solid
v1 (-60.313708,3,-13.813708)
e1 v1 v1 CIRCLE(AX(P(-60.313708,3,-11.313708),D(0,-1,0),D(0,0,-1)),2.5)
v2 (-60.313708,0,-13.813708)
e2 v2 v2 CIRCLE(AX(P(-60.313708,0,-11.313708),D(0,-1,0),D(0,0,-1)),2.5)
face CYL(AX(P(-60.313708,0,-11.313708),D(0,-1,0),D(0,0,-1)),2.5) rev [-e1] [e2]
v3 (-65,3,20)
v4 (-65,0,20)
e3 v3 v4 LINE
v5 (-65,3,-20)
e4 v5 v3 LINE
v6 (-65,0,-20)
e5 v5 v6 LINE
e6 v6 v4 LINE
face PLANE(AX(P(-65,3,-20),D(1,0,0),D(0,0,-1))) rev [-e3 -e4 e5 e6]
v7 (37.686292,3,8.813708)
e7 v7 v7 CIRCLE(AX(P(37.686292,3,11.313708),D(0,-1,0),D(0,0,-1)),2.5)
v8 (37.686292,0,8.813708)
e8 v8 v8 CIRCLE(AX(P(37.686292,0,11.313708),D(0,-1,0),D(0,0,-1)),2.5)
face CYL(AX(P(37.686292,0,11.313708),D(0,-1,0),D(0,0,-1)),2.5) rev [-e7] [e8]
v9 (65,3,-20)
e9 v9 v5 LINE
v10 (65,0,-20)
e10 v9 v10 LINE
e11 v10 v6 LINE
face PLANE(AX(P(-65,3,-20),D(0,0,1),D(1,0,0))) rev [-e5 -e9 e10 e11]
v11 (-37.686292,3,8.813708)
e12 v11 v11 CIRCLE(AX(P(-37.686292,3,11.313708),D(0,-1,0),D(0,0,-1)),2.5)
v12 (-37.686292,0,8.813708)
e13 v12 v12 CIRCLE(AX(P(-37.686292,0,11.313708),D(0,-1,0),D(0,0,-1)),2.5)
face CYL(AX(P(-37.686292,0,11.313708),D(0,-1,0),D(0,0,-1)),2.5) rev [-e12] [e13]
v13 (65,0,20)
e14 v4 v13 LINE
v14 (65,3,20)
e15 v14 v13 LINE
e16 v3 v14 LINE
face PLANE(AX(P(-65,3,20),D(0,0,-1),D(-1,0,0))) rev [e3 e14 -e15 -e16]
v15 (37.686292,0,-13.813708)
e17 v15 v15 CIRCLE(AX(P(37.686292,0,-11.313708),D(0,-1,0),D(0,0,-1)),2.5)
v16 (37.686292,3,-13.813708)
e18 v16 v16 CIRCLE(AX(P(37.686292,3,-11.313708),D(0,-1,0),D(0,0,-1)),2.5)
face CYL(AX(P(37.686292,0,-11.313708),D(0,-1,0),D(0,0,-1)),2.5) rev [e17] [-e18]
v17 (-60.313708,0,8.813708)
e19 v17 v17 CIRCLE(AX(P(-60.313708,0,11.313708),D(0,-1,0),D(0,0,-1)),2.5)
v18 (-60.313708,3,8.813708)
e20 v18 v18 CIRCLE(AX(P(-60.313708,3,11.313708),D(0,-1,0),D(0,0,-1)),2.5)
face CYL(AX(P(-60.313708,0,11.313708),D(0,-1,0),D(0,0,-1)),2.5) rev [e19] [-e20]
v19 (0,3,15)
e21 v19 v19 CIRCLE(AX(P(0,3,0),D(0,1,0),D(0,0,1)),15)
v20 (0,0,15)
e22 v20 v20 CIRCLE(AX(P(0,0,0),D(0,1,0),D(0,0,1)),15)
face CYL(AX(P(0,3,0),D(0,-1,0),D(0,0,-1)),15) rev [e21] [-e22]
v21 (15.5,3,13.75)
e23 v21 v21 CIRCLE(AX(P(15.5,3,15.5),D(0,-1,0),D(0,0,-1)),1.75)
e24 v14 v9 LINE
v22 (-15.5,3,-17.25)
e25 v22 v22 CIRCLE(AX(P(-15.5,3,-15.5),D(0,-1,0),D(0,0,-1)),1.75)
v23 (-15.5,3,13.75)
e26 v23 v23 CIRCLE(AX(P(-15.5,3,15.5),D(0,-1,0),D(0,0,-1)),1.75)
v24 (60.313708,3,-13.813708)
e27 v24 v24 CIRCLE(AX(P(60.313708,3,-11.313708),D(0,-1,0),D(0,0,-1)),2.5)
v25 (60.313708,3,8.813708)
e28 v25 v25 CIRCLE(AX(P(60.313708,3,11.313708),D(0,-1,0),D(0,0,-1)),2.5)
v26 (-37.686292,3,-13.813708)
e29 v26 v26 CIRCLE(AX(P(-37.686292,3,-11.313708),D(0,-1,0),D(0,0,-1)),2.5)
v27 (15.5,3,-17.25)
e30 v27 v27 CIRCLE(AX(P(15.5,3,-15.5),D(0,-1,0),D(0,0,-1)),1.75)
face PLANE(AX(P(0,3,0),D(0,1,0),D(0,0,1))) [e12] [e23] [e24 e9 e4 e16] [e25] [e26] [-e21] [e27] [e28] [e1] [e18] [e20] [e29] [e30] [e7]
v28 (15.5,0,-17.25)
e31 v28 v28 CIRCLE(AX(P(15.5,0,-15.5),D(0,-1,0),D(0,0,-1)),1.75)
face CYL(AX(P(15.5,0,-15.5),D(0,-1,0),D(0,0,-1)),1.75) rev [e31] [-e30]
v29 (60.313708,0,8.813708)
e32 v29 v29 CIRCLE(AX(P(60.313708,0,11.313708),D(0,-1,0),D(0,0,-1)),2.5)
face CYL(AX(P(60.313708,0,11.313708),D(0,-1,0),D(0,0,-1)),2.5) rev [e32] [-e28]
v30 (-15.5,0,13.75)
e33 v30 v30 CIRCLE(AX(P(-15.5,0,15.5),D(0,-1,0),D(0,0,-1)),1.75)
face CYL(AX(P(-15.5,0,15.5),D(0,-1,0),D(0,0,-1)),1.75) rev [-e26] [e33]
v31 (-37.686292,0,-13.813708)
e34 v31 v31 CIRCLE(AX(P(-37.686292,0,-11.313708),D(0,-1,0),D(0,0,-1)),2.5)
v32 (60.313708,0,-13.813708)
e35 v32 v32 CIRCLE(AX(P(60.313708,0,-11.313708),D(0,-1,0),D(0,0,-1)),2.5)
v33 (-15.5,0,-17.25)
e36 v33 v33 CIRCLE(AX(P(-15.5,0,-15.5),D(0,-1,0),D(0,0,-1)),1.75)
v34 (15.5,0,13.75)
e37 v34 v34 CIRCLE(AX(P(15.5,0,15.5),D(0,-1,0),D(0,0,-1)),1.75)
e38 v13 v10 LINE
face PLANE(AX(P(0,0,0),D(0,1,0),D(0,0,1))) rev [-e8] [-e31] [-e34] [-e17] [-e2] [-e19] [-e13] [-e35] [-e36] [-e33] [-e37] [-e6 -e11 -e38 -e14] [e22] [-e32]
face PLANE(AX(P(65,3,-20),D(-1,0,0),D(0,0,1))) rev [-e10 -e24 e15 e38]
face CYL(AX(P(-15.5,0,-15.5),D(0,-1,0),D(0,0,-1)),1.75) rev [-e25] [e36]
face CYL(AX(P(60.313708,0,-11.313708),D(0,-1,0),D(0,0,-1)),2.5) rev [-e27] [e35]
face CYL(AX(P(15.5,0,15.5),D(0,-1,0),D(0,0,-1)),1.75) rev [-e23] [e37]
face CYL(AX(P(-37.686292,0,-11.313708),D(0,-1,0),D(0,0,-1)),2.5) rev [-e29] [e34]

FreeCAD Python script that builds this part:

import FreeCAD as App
import Part
import Sketcher

V = App.Vector

doc = App.newDocument("Part")
body = doc.addObject("PartDesign::Body", "Body")

sketch1 = doc.addObject("Sketcher::SketchObject", "Sketch")
body.addObject(sketch1)
sketch1.AttachmentSupport = (doc.XZ_Plane, [""])
sketch1.MapMode = "FlatFace"
sketch1.addGeometry([
    Part.LineSegment(V(-65, -20, 0), V(-65, 20, 0)),
    Part.LineSegment(V(-65, 20, 0), V(65, 20, 0)),
    Part.LineSegment(V(65, 20, 0), V(65, -20, 0)),
    Part.LineSegment(V(65, -20, 0), V(-65, -20, 0)),
], False)
sketch1.addConstraint([
    Sketcher.Constraint("Coincident", 0, 2, 1, 1),
    Sketcher.Constraint("Coincident", 1, 2, 2, 1),
    Sketcher.Constraint("Coincident", 2, 2, 3, 1),
    Sketcher.Constraint("Coincident", 3, 2, 0, 1),
    Sketcher.Constraint("Vertical", 0),
    Sketcher.Constraint("Horizontal", 1),
    Sketcher.Constraint("Vertical", 2),
    Sketcher.Constraint("Horizontal", 3),
    Sketcher.Constraint("Symmetric", 0, 2, 2, 2, -1, 1),
    Sketcher.Constraint("DistanceX", 1, 1, 1, 2, 130.0),
    Sketcher.Constraint("DistanceY", 0, 1, 0, 2, 40.0),
])
pad1 = doc.addObject("PartDesign::Pad", "Pad")
body.addObject(pad1)
pad1.Profile = sketch1
pad1.Length = 3
pad1.Reversed = True

sketch2 = doc.addObject("Sketcher::SketchObject", "Sketch001")
body.addObject(sketch2)
sketch2.AttachmentSupport = (doc.XZ_Plane, [""])
sketch2.MapMode = "FlatFace"
sketch2.addGeometry(Part.Circle(V(0, 0, 0), V(0, 0, 1), 15), False)
sketch2.addConstraint([
    Sketcher.Constraint("Coincident", 0, 3, -1, 1),
    Sketcher.Constraint("Diameter", 0, 30.0),
])
pocket1 = doc.addObject("PartDesign::Pocket", "Pocket")
body.addObject(pocket1)
pocket1.Profile = sketch2
pocket1.Type = "ThroughAll"

sketch3 = doc.addObject("Sketcher::SketchObject", "Sketch002")
body.addObject(sketch3)
sketch3.AttachmentSupport = (doc.XZ_Plane, [""])
sketch3.MapMode = "FlatFace"
sketch3.addGeometry([
    Part.Circle(V(-60.3, -11.3, 0), V(0, 0, 1), 2.5),
    Part.Circle(V(-60.3, 11.3, 0), V(0, 0, 1), 2.5),
    Part.Circle(V(-37.7, 11.3, 0), V(0, 0, 1), 2.5),
    Part.Circle(V(-37.7, -11.3, 0), V(0, 0, 1), 2.5),
], False)
sketch3.addConstraint([
    Sketcher.Constraint("Equal", 0, 1),
    Sketcher.Constraint("Equal", 1, 2),
    Sketcher.Constraint("Equal", 2, 3),
    Sketcher.Constraint("Symmetric", 0, 3, 1, 3, -1),
    Sketcher.Constraint("Symmetric", 2, 3, 3, 3, -1),
    Sketcher.Constraint("Horizontal", 1, 3, 2, 3),
    Sketcher.Constraint("Diameter", 0, 5.0),
    Sketcher.Constraint("DistanceX", 0, 3, -1, 1, 60.313708),
    Sketcher.Constraint("DistanceY", 0, 3, -1, 1, 11.313708),
    Sketcher.Constraint("DistanceX", 2, 3, -1, 1, 37.686292),
])
doc.recompute()
hole = doc.addObject("PartDesign::Hole", "Hole")
body.addObject(hole)
hole.Profile = sketch3
hole.ThreadType = "None"
hole.Diameter = 5
hole.DepthType = "ThroughAll"
doc.recompute()

mirrored = doc.addObject("PartDesign::Mirrored", "Mirrored")
body.addObject(mirrored)
mirrored.Originals = [hole]
mirrored.MirrorPlane = (doc.YZ_Plane, [""])
body.Tip = mirrored

sketch4 = doc.addObject("Sketcher::SketchObject", "Sketch003")
body.addObject(sketch4)
sketch4.AttachmentSupport = (doc.XZ_Plane, [""])
sketch4.MapMode = "FlatFace"
sketch4.addGeometry([
    Part.Circle(V(0, 0, 0), V(0, 0, 1), 1.8),
    Part.Circle(V(15.5, -15.5, 0), V(0, 0, 1), 1.8),
    Part.Circle(V(-15.5, 15.5, 0), V(0, 0, 1), 1.8),
    Part.Circle(V(-15.5, -15.5, 0), V(0, 0, 1), 1.8),
    Part.Circle(V(15.5, 15.5, 0), V(0, 0, 1), 1.8),
], False)
sketch4.addConstraint([
    Sketcher.Constraint("Coincident", 0, 3, -1, 1),
    Sketcher.Constraint("Equal", 0, 1),
    Sketcher.Constraint("Equal", 1, 2),
    Sketcher.Constraint("Equal", 2, 3),
    Sketcher.Constraint("Equal", 3, 4),
    Sketcher.Constraint("Symmetric", 1, 3, 2, 3, -1, 1),
    Sketcher.Constraint("Symmetric", 3, 3, 4, 3, -1, 1),
    Sketcher.Constraint("Symmetric", 1, 3, 3, 3, -2),
    Sketcher.Constraint("Diameter", 0, 3.5),
    Sketcher.Constraint("DistanceX", 2, 3, 1, 3, 31.0),
    Sketcher.Constraint("DistanceY", 1, 3, 2, 3, 31.0),
])
doc.recompute()
hole2 = doc.addObject("PartDesign::Hole", "Hole001")
body.addObject(hole2)
hole2.Profile = sketch4
hole2.ThreadType = "None"
hole2.Diameter = 3.5
hole2.DepthType = "ThroughAll"

doc.recompute()
